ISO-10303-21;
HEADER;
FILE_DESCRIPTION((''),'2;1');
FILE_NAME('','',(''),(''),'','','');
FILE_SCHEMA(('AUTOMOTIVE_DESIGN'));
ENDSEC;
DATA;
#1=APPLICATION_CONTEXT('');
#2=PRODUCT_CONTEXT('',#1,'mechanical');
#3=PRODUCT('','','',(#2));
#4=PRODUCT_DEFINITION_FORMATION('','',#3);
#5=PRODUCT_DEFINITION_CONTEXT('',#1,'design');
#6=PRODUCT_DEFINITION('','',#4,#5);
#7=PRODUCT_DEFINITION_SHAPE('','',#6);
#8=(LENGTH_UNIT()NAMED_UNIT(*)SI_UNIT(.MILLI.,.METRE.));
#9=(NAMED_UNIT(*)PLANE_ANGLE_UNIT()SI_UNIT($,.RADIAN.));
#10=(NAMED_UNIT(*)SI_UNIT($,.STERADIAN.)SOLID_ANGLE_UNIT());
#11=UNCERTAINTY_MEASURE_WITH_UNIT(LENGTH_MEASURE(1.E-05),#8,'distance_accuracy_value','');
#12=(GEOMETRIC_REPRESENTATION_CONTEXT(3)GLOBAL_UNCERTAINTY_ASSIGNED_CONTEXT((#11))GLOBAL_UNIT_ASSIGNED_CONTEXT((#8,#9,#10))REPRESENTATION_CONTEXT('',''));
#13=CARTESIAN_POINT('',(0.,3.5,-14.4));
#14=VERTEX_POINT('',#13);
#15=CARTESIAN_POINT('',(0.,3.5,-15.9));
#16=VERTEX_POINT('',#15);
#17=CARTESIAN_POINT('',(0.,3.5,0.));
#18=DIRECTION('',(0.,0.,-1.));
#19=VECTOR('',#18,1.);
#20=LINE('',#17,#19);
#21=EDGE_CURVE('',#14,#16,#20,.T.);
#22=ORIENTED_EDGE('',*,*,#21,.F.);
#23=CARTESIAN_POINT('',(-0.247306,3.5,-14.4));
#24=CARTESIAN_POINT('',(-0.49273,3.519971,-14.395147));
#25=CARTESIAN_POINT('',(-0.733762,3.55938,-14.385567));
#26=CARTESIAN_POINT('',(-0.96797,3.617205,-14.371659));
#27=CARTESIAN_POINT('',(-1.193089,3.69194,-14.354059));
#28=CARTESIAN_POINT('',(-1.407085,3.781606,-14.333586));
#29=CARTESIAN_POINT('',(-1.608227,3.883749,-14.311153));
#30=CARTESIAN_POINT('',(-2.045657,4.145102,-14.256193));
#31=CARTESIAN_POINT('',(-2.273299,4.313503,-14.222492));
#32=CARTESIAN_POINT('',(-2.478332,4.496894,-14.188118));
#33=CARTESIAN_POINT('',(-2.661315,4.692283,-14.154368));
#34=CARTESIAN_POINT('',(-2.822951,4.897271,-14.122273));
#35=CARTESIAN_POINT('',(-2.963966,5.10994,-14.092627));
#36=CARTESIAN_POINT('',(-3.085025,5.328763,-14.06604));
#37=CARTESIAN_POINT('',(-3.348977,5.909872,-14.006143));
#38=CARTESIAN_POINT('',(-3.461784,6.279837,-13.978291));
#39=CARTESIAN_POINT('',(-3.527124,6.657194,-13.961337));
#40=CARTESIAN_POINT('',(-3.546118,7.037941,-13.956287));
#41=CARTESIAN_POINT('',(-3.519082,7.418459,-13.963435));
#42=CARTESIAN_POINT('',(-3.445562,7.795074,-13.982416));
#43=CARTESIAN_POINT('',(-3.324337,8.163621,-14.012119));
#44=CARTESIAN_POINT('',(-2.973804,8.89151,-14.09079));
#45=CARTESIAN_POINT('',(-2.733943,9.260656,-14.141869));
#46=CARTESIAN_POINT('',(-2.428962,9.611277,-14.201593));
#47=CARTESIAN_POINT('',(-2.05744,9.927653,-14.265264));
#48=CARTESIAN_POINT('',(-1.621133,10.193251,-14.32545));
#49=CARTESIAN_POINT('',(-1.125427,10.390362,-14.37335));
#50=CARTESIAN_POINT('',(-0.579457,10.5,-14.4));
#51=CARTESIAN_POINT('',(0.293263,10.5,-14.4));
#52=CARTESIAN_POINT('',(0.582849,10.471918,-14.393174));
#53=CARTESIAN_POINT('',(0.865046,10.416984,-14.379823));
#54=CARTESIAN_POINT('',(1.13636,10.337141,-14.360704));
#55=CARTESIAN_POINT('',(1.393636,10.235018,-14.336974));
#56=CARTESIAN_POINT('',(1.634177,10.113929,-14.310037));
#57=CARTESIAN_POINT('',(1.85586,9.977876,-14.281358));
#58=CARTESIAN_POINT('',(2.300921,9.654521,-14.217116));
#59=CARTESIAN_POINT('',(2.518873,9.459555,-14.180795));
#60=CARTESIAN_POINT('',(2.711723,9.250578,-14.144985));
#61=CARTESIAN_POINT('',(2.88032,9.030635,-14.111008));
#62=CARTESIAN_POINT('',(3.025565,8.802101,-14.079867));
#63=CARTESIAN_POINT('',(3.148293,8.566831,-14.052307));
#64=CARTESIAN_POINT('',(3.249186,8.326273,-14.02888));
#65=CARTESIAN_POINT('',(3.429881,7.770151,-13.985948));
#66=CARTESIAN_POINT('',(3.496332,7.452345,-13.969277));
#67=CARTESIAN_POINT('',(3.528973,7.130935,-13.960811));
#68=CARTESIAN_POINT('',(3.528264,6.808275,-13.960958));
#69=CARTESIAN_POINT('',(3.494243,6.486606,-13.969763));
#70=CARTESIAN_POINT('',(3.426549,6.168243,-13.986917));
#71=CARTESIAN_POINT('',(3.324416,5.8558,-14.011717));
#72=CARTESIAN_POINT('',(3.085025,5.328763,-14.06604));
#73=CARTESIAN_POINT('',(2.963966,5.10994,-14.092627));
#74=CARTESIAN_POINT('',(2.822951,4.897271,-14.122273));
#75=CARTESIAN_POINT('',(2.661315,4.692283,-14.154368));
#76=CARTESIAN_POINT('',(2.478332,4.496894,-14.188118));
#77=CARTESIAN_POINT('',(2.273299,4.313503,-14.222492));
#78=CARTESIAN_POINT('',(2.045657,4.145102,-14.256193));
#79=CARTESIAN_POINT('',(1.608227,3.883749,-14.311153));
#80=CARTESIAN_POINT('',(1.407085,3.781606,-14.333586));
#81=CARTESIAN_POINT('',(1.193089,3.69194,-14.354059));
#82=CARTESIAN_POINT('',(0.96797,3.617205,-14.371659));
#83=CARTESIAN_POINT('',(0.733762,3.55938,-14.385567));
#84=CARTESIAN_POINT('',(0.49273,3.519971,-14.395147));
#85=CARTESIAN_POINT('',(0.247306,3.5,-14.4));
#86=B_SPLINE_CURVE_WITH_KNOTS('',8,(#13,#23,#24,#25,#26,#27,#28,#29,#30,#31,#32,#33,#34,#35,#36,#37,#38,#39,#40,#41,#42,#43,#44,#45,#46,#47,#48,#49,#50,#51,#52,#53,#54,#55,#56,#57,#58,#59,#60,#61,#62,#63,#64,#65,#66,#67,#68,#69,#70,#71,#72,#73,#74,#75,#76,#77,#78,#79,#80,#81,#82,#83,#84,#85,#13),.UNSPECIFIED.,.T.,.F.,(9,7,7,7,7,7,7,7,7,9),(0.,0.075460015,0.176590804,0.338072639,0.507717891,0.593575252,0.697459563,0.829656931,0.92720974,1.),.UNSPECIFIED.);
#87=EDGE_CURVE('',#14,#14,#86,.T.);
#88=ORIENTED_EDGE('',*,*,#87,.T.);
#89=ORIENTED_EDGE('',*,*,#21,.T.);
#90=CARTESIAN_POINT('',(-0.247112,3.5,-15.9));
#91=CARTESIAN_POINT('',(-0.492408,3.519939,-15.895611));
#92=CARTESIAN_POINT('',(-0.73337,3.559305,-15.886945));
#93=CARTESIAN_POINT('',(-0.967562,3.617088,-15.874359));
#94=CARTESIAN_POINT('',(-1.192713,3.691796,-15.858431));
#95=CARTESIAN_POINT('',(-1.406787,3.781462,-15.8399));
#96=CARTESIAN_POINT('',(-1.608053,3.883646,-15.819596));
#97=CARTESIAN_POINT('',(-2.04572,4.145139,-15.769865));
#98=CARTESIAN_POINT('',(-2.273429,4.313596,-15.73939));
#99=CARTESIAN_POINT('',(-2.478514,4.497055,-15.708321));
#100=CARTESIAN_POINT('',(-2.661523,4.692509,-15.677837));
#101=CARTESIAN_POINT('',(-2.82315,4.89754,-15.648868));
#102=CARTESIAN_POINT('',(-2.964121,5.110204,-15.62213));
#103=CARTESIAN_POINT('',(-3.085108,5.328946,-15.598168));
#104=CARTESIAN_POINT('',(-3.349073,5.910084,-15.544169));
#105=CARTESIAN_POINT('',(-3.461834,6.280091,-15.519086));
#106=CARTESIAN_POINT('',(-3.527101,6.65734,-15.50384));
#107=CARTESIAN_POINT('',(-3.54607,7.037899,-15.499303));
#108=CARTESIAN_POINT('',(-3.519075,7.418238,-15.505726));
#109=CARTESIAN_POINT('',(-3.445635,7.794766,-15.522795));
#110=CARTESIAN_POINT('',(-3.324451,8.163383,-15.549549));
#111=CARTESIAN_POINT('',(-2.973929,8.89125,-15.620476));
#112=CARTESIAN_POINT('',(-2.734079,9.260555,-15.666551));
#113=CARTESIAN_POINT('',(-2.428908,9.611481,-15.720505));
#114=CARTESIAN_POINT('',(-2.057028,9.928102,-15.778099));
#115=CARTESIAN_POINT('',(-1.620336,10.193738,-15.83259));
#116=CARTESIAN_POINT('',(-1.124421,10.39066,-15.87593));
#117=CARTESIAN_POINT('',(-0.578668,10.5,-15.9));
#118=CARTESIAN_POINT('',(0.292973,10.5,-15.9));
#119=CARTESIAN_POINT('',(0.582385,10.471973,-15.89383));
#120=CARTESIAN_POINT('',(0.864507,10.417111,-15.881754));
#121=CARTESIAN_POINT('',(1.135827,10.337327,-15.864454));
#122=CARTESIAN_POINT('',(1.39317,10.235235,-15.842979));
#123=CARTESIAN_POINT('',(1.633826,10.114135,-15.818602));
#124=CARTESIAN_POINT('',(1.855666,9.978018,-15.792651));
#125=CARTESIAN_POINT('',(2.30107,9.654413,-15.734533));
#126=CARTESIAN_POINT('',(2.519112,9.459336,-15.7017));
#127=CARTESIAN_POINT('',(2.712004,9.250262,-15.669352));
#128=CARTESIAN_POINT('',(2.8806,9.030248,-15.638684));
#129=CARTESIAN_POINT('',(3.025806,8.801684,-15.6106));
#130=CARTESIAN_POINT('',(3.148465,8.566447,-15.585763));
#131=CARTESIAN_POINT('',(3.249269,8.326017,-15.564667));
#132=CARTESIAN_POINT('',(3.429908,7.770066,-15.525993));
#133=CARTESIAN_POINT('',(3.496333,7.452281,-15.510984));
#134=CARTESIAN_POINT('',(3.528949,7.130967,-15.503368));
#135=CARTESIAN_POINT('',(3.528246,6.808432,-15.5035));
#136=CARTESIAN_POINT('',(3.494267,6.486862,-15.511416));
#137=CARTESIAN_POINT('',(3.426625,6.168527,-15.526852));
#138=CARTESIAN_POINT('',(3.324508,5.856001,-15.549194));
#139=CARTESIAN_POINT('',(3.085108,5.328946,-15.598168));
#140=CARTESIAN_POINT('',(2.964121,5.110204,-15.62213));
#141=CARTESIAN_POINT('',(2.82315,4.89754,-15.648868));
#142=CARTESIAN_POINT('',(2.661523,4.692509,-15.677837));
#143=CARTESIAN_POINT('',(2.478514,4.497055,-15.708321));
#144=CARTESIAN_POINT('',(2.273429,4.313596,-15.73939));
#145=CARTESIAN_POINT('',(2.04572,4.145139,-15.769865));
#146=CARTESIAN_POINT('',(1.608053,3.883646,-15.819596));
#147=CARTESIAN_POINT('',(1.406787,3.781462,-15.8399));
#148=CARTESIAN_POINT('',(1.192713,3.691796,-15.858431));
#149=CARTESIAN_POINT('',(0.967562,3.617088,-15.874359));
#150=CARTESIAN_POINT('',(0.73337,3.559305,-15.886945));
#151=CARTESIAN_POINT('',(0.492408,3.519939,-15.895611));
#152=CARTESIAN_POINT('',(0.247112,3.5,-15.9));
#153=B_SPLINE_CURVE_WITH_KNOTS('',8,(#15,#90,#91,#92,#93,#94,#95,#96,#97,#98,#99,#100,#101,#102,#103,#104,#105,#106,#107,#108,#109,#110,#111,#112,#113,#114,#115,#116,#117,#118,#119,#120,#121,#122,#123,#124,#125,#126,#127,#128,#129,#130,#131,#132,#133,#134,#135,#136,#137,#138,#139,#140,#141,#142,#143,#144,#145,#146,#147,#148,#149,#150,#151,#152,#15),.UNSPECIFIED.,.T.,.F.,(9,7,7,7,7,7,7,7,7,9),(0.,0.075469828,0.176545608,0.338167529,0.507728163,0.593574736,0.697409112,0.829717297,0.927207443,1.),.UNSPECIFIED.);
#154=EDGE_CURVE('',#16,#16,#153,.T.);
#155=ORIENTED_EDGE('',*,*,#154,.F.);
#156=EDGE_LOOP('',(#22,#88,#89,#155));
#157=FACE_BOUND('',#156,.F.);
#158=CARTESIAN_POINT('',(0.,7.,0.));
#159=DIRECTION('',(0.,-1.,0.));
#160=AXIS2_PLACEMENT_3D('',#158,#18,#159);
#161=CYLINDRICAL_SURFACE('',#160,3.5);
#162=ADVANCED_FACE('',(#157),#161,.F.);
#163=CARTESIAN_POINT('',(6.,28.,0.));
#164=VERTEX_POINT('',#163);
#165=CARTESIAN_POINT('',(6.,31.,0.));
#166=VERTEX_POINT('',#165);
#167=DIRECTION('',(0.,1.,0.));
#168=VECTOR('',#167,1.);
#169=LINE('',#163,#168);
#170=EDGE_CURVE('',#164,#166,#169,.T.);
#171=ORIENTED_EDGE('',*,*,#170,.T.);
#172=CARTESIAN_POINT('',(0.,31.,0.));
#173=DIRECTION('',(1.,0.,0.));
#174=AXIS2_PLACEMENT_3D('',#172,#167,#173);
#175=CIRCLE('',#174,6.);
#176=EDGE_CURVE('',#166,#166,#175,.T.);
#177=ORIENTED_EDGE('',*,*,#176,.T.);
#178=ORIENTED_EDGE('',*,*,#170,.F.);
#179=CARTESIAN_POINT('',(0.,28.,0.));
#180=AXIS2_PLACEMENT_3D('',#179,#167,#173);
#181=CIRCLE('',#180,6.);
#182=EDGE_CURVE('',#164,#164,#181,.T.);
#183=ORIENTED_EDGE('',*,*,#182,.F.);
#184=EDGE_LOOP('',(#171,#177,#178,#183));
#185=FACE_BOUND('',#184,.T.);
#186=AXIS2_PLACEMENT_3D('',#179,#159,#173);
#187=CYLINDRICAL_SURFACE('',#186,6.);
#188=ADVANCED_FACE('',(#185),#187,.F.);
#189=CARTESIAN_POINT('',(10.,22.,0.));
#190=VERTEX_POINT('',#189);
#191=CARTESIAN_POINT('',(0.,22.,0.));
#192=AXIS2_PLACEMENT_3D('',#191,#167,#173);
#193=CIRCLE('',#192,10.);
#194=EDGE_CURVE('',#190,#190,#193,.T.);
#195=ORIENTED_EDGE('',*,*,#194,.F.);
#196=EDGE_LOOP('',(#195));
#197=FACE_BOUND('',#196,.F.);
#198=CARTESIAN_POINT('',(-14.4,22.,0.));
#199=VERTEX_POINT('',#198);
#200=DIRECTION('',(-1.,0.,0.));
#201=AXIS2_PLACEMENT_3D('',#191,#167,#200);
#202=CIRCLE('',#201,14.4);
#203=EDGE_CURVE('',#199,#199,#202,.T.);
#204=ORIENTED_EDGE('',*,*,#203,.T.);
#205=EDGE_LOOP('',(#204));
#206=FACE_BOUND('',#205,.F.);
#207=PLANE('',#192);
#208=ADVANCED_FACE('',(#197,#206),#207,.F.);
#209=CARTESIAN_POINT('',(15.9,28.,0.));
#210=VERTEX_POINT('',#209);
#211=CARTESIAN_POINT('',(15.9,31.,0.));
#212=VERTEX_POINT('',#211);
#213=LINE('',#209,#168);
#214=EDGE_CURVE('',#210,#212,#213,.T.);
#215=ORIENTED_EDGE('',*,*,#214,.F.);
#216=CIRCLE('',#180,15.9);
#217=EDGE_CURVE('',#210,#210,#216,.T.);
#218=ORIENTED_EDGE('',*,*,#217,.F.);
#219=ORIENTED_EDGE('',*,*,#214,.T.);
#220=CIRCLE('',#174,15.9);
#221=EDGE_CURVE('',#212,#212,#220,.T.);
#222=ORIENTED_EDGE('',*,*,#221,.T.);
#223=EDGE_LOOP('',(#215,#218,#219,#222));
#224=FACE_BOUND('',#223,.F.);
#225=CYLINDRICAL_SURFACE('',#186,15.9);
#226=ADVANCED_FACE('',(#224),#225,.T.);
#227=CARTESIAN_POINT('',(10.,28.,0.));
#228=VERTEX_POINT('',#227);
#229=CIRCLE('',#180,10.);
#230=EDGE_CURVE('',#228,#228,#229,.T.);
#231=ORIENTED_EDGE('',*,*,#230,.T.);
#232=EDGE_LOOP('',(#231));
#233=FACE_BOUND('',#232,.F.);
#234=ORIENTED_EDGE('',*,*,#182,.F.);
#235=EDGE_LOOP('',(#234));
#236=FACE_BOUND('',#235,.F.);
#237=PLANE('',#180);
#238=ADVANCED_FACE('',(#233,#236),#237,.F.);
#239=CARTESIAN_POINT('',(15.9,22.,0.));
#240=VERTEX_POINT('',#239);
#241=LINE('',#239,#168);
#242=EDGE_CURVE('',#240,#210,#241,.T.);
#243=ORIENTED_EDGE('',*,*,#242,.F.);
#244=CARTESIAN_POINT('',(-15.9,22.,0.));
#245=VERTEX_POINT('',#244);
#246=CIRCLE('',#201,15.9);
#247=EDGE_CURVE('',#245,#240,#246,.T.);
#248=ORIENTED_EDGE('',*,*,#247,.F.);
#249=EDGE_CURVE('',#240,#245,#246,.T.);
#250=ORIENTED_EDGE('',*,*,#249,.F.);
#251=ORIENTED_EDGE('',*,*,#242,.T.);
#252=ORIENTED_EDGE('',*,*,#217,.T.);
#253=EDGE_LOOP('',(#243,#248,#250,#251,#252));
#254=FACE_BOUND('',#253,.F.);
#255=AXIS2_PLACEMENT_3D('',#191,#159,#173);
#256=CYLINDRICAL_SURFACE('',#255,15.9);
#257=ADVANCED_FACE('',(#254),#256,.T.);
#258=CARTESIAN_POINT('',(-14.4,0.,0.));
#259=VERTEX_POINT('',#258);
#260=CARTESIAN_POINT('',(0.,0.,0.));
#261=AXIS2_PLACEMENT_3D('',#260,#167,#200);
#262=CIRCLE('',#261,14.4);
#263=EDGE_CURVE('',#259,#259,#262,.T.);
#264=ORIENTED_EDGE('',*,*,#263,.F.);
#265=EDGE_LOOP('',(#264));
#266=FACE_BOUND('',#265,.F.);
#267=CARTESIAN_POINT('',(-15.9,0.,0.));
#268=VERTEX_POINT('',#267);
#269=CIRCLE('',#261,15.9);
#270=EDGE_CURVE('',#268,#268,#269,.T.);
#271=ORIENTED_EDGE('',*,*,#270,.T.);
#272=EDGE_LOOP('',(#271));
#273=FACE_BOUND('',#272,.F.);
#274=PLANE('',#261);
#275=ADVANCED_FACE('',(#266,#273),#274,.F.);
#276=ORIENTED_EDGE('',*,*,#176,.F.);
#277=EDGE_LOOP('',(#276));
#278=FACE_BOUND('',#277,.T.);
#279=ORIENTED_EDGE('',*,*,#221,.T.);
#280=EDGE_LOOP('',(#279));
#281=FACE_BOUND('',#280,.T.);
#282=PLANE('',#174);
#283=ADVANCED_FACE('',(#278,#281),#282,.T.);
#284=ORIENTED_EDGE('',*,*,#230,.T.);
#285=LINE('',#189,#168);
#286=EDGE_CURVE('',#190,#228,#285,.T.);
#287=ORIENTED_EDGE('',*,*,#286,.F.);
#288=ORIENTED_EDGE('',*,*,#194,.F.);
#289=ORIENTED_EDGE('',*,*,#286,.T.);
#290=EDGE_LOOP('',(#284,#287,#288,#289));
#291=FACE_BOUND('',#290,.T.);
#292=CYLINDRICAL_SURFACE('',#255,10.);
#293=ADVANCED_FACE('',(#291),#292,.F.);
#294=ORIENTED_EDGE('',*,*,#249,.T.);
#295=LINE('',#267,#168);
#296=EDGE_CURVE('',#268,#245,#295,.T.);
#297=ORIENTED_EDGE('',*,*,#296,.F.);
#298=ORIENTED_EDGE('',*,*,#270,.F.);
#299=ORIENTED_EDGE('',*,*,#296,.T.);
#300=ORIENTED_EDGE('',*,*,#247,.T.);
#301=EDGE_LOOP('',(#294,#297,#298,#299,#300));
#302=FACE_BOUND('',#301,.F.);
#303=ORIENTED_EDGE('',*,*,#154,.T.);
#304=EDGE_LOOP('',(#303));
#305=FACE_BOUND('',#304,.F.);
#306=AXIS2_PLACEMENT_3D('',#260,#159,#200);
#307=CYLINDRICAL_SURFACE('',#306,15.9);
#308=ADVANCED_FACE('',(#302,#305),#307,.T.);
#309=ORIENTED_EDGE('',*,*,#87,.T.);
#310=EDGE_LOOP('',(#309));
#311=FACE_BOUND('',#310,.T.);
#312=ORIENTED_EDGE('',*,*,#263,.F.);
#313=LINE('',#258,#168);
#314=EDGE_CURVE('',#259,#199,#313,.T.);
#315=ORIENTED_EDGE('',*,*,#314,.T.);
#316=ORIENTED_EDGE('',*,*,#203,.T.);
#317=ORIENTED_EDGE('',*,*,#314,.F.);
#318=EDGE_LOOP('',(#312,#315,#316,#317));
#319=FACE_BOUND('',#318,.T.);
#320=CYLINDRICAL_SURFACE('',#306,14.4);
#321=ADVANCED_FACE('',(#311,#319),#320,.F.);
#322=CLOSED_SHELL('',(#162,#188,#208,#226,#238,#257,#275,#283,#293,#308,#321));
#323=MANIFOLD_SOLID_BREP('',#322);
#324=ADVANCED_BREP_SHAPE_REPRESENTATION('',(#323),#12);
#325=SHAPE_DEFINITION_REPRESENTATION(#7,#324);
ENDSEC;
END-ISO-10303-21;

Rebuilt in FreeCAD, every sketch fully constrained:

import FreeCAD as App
import Part
import Sketcher

V = App.Vector
Q = App.Units.Quantity

doc = App.newDocument("Part")
body = doc.addObject("PartDesign::Body", "Body")

sketch1 = body.newObject("Sketcher::SketchObject", "Sketch")
sketch1.AttachmentSupport = (doc.getObject("XZ_Plane"), [""])
sketch1.MapMode = "FlatFace"
sketch1.addGeometry([
    Part.Circle(V(0, 0, 0), V(0, 0, 1), 16),
    Part.Circle(V(0, 0, 0), V(0, 0, 1), 14),
], False)
sketch1.addConstraint([
    Sketcher.Constraint("Coincident", 0, 3, -1, 1),
    Sketcher.Constraint("Coincident", 1, 3, -1, 1),
    Sketcher.Constraint("Diameter", 1, Q("28.8 mm")),
    Sketcher.Constraint("Diameter", 0, Q("31.8 mm")),
])
pad1 = body.newObject("PartDesign::Pad", "Pad")
pad1.Profile = sketch1
pad1.Length = 22
pad1.Reversed = True

sketch2 = body.newObject("Sketcher::SketchObject", "Sketch001")
sketch2.AttachmentSupport = (doc.getObject("XY_Plane"), [""])
sketch2.MapMode = "FlatFace"
sketch2.addGeometry(Part.Circle(V(0, 7, 0), V(0, 0, 1), 3.5), False)
sketch2.addConstraint([
    Sketcher.Constraint("PointOnObject", 0, 3, -2),
    Sketcher.Constraint("Diameter", 0, Q("7 mm")),
    Sketcher.Constraint("DistanceY", -1, 1, 0, 3, Q("7 mm")),
])
doc.recompute()
hole = body.newObject("PartDesign::Hole", "Hole")
hole.Profile = sketch2
hole.ThreadType = "None"
hole.Diameter = 7
hole.DepthType = "ThroughAll"

sketch3 = body.newObject("Sketcher::SketchObject", "Sketch002")
sketch3.AttachmentSupport = (doc.getObject("XZ_Plane"), [""])
sketch3.MapMode = "FlatFace"
sketch3.AttachmentOffset = App.Placement(V(0, 0, -22), App.Rotation())
sketch3.addGeometry([
    Part.Circle(V(0, 0, 0), V(0, 0, 1), 16),
    Part.Circle(V(0, 0, 0), V(0, 0, 1), 10),
], False)
sketch3.addConstraint([
    Sketcher.Constraint("Coincident", 0, 3, -1, 1),
    Sketcher.Constraint("Coincident", 1, 3, -1, 1),
    Sketcher.Constraint("Diameter", 1, Q("20 mm")),
    Sketcher.Constraint("Diameter", 0, Q("31.8 mm")),
])
pad2 = body.newObject("PartDesign::Pad", "Pad001")
pad2.Profile = sketch3
pad2.Length = 6
pad2.Reversed = True

sketch4 = body.newObject("Sketcher::SketchObject", "Sketch003")
sketch4.AttachmentSupport = (doc.getObject("XZ_Plane"), [""])
sketch4.MapMode = "FlatFace"
sketch4.AttachmentOffset = App.Placement(V(0, 0, -28), App.Rotation())
sketch4.addGeometry([
    Part.Circle(V(0, 0, 0), V(0, 0, 1), 16),
    Part.Circle(V(0, 0, 0), V(0, 0, 1), 6),
], False)
sketch4.addConstraint([
    Sketcher.Constraint("Coincident", 0, 3, -1, 1),
    Sketcher.Constraint("Coincident", 1, 3, -1, 1),
    Sketcher.Constraint("Diameter", 1, Q("12 mm")),
    Sketcher.Constraint("Diameter", 0, Q("31.8 mm")),
])
pad3 = body.newObject("PartDesign::Pad", "Pad002")
pad3.Profile = sketch4
pad3.Length = 3
pad3.Reversed = True

doc.recompute()
